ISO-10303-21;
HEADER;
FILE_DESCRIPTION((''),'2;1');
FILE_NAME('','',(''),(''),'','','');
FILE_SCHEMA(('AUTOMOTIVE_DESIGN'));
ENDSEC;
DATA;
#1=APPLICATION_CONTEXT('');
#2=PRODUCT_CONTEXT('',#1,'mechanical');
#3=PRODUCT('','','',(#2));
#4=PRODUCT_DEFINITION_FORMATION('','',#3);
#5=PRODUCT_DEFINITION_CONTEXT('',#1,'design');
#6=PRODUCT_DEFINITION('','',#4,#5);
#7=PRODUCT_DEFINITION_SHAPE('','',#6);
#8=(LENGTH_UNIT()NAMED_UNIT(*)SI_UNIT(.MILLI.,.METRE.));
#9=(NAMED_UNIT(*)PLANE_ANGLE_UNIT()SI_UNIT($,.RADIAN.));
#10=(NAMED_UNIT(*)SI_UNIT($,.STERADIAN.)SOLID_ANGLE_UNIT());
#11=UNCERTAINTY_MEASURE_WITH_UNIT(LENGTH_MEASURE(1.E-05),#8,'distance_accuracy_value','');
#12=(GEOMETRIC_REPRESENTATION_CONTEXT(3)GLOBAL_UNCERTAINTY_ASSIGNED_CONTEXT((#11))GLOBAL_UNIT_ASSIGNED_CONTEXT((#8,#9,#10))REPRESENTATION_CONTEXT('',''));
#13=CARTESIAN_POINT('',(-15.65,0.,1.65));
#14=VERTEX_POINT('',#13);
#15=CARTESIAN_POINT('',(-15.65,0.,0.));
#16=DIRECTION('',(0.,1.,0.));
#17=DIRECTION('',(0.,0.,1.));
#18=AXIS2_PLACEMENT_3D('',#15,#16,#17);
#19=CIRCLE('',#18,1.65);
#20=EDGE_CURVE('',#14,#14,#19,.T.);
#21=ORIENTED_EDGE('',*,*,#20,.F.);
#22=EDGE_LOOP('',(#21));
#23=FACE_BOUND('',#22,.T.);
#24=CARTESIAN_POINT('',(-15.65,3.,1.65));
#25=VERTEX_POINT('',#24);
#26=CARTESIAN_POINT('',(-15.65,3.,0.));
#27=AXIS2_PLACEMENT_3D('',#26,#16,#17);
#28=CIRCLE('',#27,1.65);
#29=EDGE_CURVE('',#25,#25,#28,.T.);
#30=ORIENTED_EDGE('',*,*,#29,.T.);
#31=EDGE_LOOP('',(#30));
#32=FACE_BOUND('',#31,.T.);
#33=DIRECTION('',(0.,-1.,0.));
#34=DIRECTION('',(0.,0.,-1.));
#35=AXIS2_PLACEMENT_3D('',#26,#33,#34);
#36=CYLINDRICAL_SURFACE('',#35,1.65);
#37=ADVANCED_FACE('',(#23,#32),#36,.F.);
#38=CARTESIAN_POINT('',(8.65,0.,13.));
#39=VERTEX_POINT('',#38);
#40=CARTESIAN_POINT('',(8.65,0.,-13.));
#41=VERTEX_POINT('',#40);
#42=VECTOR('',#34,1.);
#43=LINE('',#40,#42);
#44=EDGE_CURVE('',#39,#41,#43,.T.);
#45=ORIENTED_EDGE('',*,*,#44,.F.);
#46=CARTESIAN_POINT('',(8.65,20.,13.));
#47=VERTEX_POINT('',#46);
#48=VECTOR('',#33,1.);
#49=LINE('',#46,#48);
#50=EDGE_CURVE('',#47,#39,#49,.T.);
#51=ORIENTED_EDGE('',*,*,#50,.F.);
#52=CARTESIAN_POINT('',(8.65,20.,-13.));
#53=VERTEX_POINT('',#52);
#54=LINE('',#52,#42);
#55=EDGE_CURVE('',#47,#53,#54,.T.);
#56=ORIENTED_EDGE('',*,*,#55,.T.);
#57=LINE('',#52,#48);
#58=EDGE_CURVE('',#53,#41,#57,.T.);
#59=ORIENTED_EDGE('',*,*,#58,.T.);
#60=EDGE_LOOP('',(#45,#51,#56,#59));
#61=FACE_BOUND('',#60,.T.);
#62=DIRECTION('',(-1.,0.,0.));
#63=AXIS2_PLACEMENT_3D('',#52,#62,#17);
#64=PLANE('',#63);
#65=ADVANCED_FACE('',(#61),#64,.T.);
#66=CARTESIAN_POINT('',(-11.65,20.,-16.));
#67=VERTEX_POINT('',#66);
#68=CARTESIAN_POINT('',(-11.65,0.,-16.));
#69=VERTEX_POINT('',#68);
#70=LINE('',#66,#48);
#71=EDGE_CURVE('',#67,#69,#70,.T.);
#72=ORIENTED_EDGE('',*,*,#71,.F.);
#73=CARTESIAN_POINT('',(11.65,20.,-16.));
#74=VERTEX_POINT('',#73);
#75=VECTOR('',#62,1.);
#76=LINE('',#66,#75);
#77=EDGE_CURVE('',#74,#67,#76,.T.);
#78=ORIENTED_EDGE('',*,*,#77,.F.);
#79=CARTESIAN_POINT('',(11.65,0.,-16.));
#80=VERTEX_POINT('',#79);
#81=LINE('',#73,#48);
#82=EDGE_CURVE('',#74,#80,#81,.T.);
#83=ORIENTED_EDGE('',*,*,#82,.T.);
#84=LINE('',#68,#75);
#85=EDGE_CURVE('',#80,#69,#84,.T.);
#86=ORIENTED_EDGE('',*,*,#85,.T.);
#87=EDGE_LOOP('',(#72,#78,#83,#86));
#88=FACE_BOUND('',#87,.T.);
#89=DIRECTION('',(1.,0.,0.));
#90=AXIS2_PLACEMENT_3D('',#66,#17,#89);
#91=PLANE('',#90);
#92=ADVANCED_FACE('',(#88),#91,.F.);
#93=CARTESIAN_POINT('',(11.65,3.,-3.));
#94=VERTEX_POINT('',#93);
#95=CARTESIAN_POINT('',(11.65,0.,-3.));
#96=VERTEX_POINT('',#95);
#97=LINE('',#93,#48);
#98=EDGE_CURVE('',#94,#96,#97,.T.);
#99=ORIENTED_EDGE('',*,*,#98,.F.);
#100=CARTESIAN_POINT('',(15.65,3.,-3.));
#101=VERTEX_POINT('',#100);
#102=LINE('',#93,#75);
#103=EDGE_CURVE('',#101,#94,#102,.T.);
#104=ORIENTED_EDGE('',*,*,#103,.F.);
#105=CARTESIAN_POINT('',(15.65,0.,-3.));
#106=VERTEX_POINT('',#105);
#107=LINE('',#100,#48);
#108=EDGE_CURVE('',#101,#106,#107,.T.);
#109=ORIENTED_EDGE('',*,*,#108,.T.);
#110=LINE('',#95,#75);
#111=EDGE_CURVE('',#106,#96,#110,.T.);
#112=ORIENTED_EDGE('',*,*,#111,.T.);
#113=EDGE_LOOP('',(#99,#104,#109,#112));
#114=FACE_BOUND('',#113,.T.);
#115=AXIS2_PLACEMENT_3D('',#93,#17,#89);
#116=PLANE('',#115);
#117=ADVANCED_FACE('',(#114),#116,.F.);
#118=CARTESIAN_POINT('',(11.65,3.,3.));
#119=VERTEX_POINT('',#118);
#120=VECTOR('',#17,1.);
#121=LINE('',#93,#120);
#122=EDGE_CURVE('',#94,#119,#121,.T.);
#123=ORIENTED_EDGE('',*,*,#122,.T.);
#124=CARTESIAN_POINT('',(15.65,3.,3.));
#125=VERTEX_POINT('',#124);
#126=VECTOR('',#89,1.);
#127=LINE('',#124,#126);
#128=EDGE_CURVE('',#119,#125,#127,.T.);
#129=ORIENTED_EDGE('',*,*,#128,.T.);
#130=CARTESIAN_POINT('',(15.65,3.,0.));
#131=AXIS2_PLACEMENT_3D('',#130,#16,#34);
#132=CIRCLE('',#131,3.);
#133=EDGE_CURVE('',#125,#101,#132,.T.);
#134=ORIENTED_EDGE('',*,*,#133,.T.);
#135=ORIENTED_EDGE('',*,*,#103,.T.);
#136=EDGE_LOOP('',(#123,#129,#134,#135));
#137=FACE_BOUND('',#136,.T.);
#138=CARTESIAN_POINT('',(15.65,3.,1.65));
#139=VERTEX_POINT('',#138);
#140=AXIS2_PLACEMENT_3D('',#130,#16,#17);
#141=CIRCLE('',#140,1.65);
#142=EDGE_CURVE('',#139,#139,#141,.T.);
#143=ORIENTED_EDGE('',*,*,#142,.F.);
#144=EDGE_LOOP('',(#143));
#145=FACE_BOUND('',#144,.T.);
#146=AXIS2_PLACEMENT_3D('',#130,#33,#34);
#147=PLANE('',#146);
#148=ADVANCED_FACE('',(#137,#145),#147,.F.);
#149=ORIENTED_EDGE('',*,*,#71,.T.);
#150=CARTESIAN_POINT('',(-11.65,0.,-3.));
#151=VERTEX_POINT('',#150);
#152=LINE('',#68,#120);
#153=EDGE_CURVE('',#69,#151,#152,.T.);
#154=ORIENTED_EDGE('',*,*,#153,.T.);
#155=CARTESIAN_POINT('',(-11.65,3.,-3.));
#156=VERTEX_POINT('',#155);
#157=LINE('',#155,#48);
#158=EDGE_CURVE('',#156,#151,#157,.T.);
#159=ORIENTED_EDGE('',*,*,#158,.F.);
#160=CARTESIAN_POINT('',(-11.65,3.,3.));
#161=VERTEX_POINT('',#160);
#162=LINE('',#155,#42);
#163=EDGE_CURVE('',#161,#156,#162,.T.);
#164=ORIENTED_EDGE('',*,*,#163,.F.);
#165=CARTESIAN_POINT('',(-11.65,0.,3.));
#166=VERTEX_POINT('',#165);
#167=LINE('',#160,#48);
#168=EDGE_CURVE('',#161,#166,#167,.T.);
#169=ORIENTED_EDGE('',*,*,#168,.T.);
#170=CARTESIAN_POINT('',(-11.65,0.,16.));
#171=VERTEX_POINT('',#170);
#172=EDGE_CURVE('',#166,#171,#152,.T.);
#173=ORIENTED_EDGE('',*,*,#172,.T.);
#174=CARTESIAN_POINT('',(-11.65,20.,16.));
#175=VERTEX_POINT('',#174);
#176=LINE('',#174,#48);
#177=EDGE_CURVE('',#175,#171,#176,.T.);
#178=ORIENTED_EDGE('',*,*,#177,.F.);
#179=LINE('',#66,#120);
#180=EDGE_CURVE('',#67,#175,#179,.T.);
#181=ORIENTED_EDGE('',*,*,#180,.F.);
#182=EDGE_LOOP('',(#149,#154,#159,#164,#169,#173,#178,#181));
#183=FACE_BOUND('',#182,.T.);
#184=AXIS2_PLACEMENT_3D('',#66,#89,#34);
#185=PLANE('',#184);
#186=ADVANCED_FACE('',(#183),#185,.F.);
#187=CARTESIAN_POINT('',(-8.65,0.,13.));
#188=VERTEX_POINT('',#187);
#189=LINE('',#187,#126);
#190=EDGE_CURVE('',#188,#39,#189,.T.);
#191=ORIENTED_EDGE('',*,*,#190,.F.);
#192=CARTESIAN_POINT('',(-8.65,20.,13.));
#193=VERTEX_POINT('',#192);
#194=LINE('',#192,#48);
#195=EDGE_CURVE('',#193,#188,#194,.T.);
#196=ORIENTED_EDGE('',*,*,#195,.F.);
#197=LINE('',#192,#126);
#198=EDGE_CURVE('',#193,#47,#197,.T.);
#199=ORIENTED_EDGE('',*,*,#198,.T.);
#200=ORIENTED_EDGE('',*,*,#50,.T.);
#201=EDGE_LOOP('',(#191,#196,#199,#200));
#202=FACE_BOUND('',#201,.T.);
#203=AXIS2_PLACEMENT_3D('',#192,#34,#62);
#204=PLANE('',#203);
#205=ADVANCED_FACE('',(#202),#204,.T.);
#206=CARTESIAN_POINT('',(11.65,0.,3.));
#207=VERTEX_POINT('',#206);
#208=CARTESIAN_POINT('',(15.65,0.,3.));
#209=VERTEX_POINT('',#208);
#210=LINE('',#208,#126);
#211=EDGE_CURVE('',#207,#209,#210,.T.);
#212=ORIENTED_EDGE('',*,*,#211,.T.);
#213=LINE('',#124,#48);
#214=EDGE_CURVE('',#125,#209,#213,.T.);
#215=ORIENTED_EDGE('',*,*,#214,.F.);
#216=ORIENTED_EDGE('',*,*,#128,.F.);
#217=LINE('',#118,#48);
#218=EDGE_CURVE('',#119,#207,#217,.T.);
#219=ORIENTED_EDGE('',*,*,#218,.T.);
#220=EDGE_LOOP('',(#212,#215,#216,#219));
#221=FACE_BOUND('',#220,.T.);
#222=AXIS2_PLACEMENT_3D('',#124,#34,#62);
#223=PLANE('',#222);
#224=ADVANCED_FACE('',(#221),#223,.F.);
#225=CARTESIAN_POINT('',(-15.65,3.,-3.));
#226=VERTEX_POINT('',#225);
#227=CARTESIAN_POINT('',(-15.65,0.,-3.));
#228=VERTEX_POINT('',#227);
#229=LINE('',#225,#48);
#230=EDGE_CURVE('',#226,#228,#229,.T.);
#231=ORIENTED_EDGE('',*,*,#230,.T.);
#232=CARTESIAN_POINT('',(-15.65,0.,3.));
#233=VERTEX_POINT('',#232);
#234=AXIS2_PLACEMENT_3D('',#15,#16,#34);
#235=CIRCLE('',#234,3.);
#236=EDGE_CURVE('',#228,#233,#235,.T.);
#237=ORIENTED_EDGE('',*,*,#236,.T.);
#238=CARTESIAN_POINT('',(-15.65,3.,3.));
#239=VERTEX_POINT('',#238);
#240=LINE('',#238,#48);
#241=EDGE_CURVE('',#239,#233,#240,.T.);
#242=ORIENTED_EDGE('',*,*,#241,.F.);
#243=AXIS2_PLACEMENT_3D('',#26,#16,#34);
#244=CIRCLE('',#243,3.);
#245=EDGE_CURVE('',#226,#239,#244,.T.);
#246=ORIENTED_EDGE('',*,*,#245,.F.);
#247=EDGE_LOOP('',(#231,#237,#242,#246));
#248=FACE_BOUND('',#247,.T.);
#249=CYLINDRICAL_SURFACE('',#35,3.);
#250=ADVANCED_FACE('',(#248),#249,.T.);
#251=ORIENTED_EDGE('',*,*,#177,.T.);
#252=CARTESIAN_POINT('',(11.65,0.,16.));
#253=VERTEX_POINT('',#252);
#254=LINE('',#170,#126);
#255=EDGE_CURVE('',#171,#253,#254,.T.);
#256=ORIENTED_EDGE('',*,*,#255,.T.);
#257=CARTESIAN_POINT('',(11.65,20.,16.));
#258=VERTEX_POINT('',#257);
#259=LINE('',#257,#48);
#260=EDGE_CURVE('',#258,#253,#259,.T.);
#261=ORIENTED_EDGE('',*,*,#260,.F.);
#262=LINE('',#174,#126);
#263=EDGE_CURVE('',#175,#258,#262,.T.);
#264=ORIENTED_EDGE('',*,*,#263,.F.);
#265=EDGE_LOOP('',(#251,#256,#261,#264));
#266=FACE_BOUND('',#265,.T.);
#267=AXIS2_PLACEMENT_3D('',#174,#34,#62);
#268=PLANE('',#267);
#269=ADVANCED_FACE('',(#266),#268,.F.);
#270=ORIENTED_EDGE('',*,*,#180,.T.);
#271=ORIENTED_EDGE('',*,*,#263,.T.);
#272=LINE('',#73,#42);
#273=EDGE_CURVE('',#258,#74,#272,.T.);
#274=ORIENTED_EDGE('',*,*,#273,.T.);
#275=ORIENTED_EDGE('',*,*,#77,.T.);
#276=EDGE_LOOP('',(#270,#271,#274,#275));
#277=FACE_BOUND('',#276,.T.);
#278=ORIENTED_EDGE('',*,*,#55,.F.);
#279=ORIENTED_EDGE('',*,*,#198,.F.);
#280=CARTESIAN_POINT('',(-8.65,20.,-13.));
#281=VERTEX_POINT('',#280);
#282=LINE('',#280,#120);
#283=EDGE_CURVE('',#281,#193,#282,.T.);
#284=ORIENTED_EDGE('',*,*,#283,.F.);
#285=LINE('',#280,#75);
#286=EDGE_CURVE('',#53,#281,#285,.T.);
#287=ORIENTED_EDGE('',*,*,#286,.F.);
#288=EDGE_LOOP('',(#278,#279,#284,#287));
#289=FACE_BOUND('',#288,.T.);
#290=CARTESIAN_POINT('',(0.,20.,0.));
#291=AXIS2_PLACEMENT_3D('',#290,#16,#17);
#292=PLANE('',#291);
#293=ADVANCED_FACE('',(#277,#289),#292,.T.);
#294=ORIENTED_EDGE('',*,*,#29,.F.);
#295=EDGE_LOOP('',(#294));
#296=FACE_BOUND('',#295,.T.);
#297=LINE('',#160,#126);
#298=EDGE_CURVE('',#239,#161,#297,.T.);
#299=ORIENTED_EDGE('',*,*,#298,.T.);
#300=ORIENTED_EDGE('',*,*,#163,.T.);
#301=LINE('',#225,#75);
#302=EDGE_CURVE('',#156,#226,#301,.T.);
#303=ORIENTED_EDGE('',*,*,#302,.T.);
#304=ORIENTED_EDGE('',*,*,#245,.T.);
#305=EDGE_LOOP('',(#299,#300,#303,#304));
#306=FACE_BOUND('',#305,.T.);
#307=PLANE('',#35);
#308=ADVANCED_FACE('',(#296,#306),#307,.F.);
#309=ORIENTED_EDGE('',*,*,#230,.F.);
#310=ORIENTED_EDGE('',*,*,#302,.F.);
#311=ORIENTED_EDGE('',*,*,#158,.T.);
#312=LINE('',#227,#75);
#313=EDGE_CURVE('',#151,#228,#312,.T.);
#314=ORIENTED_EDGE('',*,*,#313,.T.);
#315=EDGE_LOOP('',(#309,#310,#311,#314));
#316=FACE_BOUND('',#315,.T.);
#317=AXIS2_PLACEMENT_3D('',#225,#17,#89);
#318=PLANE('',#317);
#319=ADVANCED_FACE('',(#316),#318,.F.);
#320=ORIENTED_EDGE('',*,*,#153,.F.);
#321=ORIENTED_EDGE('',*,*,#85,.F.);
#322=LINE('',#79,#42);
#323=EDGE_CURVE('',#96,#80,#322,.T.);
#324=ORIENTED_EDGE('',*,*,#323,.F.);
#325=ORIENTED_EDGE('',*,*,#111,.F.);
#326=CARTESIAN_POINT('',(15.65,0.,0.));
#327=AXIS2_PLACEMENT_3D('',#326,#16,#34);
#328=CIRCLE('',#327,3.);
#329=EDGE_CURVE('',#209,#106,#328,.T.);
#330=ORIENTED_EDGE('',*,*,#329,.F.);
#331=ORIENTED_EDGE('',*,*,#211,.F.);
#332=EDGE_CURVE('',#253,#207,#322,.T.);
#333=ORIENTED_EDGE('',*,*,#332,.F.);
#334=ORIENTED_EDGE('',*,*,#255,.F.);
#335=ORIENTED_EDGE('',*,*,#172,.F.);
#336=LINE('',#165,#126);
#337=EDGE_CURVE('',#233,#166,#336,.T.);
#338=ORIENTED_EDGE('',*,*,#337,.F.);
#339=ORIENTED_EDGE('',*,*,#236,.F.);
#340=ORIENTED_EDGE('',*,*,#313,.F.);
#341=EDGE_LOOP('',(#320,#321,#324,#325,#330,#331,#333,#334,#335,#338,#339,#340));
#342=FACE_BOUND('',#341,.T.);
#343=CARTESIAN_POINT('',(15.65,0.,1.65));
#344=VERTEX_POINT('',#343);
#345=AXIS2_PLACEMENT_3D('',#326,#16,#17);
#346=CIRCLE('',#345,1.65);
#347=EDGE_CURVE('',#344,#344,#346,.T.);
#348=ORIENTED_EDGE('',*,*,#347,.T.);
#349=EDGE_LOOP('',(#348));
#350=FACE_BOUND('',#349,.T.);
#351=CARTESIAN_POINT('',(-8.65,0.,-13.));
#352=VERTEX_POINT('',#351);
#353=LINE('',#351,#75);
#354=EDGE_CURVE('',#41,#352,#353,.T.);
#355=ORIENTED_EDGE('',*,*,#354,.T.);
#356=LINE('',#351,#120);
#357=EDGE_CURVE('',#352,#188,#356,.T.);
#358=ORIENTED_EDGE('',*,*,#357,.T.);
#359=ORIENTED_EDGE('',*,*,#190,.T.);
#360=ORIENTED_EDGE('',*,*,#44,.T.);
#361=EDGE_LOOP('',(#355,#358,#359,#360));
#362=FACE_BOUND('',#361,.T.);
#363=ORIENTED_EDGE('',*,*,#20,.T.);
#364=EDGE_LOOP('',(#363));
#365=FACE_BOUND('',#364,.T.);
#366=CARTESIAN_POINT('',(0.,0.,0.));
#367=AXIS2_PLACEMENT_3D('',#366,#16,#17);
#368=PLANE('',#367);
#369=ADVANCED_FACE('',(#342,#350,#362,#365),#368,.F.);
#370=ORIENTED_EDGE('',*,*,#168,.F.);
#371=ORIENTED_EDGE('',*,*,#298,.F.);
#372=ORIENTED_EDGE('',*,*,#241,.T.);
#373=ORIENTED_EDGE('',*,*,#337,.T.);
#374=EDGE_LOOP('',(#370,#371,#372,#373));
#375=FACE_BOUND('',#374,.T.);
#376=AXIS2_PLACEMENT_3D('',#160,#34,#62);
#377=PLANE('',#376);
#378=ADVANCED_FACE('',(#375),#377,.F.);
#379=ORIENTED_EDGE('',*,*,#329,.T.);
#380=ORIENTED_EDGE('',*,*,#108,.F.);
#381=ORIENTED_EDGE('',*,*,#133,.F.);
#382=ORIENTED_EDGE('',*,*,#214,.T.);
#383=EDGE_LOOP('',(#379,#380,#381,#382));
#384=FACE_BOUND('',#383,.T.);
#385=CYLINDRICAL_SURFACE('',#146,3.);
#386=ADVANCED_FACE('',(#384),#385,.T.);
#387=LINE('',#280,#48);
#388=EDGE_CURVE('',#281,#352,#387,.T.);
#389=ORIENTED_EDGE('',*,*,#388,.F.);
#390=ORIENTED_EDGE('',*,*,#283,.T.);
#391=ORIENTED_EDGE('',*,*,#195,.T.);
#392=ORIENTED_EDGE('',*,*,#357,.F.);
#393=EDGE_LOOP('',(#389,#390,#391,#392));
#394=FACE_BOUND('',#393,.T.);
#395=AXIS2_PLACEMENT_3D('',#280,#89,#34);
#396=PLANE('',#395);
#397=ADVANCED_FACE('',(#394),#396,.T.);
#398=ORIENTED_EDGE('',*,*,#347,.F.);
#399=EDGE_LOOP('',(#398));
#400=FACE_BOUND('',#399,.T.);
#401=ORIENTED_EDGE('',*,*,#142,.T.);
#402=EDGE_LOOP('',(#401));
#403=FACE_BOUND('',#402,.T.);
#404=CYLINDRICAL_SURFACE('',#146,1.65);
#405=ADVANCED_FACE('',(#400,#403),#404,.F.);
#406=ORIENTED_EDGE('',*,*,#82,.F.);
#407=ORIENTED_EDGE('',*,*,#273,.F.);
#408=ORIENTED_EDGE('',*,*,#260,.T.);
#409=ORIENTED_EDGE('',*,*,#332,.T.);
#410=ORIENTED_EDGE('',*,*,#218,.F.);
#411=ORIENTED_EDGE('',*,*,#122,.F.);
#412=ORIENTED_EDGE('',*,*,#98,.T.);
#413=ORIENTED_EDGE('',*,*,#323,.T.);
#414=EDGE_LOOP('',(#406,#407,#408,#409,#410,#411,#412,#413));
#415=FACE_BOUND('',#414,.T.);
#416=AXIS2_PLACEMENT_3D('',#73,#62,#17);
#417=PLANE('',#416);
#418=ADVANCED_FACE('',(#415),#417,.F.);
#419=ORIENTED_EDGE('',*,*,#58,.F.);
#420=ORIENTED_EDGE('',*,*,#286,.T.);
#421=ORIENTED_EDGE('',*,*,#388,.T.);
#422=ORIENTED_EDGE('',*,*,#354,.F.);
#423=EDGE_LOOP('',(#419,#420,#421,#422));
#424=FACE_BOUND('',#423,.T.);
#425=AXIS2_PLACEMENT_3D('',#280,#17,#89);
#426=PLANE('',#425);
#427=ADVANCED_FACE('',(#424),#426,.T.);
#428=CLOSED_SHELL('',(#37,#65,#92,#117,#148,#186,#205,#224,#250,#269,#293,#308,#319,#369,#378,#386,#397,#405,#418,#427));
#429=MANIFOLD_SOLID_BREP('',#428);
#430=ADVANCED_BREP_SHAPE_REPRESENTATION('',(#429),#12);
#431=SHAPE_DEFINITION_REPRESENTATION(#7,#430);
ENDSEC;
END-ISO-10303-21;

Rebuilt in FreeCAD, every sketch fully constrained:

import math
import FreeCAD as App
import Part
import Sketcher
Q = App.Units.Quantity


def add_polygon(sketch, points):
    """Adds a closed chain of lines whose ends are joined by coincident constraints."""
    first, n = sketch.GeometryCount, len(points)
    for a, b in zip(points, points[1:] + points[:1]):
        sketch.addGeometry(Part.LineSegment(App.Vector(*a, 0), App.Vector(*b, 0)), False)
    for i in range(n):
        sketch.addConstraint(Sketcher.Constraint("Coincident", first + i, 2, first + (i + 1) % n, 1))

doc = App.newDocument("Part")
body = doc.addObject("PartDesign::Body", "Body")

# Sketch on XZ plane
sketch1 = body.newObject("Sketcher::SketchObject", "Sketch")
sketch1.AttachmentSupport = (doc.getObject("XZ_Plane"), [""])
sketch1.MapMode = "FlatFace"
add_polygon(sketch1, [(-11.65, -16), (-11.65, 16), (11.65, 16), (11.65, -16)])  # lines 0-3
add_polygon(sketch1, [(8.65, 13), (-8.65, 13), (-8.65, -13), (8.65, -13)])  # lines 4-7
sketch1.addConstraint(Sketcher.Constraint("Vertical", 0))
sketch1.addConstraint(Sketcher.Constraint("Horizontal", 1))
sketch1.addConstraint(Sketcher.Constraint("Vertical", 2))
sketch1.addConstraint(Sketcher.Constraint("Horizontal", 3))
sketch1.addConstraint(Sketcher.Constraint("Horizontal", 4))
sketch1.addConstraint(Sketcher.Constraint("Vertical", 5))
sketch1.addConstraint(Sketcher.Constraint("Horizontal", 6))
sketch1.addConstraint(Sketcher.Constraint("Vertical", 7))
sketch1.addConstraint(Sketcher.Constraint("Symmetric", 0, 2, 2, 2, -1, 1))
sketch1.addConstraint(Sketcher.Constraint("Symmetric", 4, 2, 6, 2, -1, 1))
sketch1.addConstraint(Sketcher.Constraint("DistanceY", 0, 1, 0, 2, Q("32 mm")))
sketch1.addConstraint(Sketcher.Constraint("DistanceY", 5, 2, 5, 1, Q("26 mm")))
sketch1.addConstraint(Sketcher.Constraint("DistanceX", 1, 1, 1, 2, Q("23.3 mm")))
sketch1.addConstraint(Sketcher.Constraint("DistanceX", 4, 2, 4, 1, Q("17.3 mm")))
pad1 = body.newObject("PartDesign::Pad", "Pad")
pad1.Profile = sketch1
pad1.Length = 20
pad1.Reversed = True

# Sketch on XZ plane
sketch2 = body.newObject("Sketcher::SketchObject", "Sketch001")
sketch2.AttachmentSupport = (doc.getObject("XZ_Plane"), [""])
sketch2.MapMode = "FlatFace"
sketch2.addGeometry(Part.LineSegment(App.Vector(15.65, -3, 0), App.Vector(11.65, -3, 0)), False)
sketch2.addGeometry(Part.LineSegment(App.Vector(11.65, -3, 0), App.Vector(11.65, 3, 0)), False)
sketch2.addGeometry(Part.LineSegment(App.Vector(11.65, 3, 0), App.Vector(15.65, 3, 0)), False)
sketch2.addGeometry(Part.ArcOfCircle(Part.Circle(App.Vector(15.65, 0, 0), App.Vector(0, 0, 1), 3), math.radians(-90), math.radians(90)), False)
sketch2.addGeometry(Part.Circle(App.Vector(15.65, 0, 0), App.Vector(0, 0, 1), 1.65), False)
sketch2.addGeometry(Part.LineSegment(App.Vector(-15.65, 3, 0), App.Vector(-11.65, 3, 0)), False)
sketch2.addGeometry(Part.LineSegment(App.Vector(-11.65, 3, 0), App.Vector(-11.65, -3, 0)), False)
sketch2.addGeometry(Part.LineSegment(App.Vector(-11.65, -3, 0), App.Vector(-15.65, -3, 0)), False)
sketch2.addGeometry(Part.ArcOfCircle(Part.Circle(App.Vector(-15.65, 0, 0), App.Vector(0, 0, 1), 3), math.radians(90), math.radians(270)), False)
sketch2.addGeometry(Part.Circle(App.Vector(-15.65, 0, 0), App.Vector(0, 0, 1), 1.65), False)
sketch2.addConstraint(Sketcher.Constraint("Coincident", 0, 2, 1, 1))
sketch2.addConstraint(Sketcher.Constraint("Coincident", 1, 2, 2, 1))
sketch2.addConstraint(Sketcher.Constraint("Tangent", 2, 2, 3, 2))
sketch2.addConstraint(Sketcher.Constraint("Tangent", 3, 1, 0, 1))
sketch2.addConstraint(Sketcher.Constraint("Coincident", 5, 2, 6, 1))
sketch2.addConstraint(Sketcher.Constraint("Coincident", 6, 2, 7, 1))
sketch2.addConstraint(Sketcher.Constraint("Tangent", 7, 2, 8, 2))
sketch2.addConstraint(Sketcher.Constraint("Tangent", 8, 1, 5, 1))
sketch2.addConstraint(Sketcher.Constraint("Horizontal", 0))
sketch2.addConstraint(Sketcher.Constraint("Vertical", 1))
sketch2.addConstraint(Sketcher.Constraint("Horizontal", 2))
sketch2.addConstraint(Sketcher.Constraint("Horizontal", 5))
sketch2.addConstraint(Sketcher.Constraint("Vertical", 6))
sketch2.addConstraint(Sketcher.Constraint("Horizontal", 7))
sketch2.addConstraint(Sketcher.Constraint("Coincident", 4, 3, 3, 3))
sketch2.addConstraint(Sketcher.Constraint("Coincident", 9, 3, 8, 3))
sketch2.addConstraint(Sketcher.Constraint("Equal", 3, 8))
sketch2.addConstraint(Sketcher.Constraint("Equal", 4, 9))
sketch2.addConstraint(Sketcher.Constraint("Symmetric", 3, 3, 8, 3, -1, 1))
sketch2.addConstraint(Sketcher.Constraint("Symmetric", 1, 2, 5, 2, -2))
sketch2.addConstraint(Sketcher.Constraint("Radius", 3, Q("3 mm")))
sketch2.addConstraint(Sketcher.Constraint("Diameter", 4, Q("3.3 mm")))
sketch2.addConstraint(Sketcher.Constraint("DistanceX", 0, 2, 0, 1, Q("4 mm")))
sketch2.addConstraint(Sketcher.Constraint("DistanceX", 8, 3, 3, 3, Q("31.3 mm")))
pad2 = body.newObject("PartDesign::Pad", "Pad001")
pad2.Profile = sketch2
pad2.Length = 3
pad2.Reversed = True

doc.recompute()
